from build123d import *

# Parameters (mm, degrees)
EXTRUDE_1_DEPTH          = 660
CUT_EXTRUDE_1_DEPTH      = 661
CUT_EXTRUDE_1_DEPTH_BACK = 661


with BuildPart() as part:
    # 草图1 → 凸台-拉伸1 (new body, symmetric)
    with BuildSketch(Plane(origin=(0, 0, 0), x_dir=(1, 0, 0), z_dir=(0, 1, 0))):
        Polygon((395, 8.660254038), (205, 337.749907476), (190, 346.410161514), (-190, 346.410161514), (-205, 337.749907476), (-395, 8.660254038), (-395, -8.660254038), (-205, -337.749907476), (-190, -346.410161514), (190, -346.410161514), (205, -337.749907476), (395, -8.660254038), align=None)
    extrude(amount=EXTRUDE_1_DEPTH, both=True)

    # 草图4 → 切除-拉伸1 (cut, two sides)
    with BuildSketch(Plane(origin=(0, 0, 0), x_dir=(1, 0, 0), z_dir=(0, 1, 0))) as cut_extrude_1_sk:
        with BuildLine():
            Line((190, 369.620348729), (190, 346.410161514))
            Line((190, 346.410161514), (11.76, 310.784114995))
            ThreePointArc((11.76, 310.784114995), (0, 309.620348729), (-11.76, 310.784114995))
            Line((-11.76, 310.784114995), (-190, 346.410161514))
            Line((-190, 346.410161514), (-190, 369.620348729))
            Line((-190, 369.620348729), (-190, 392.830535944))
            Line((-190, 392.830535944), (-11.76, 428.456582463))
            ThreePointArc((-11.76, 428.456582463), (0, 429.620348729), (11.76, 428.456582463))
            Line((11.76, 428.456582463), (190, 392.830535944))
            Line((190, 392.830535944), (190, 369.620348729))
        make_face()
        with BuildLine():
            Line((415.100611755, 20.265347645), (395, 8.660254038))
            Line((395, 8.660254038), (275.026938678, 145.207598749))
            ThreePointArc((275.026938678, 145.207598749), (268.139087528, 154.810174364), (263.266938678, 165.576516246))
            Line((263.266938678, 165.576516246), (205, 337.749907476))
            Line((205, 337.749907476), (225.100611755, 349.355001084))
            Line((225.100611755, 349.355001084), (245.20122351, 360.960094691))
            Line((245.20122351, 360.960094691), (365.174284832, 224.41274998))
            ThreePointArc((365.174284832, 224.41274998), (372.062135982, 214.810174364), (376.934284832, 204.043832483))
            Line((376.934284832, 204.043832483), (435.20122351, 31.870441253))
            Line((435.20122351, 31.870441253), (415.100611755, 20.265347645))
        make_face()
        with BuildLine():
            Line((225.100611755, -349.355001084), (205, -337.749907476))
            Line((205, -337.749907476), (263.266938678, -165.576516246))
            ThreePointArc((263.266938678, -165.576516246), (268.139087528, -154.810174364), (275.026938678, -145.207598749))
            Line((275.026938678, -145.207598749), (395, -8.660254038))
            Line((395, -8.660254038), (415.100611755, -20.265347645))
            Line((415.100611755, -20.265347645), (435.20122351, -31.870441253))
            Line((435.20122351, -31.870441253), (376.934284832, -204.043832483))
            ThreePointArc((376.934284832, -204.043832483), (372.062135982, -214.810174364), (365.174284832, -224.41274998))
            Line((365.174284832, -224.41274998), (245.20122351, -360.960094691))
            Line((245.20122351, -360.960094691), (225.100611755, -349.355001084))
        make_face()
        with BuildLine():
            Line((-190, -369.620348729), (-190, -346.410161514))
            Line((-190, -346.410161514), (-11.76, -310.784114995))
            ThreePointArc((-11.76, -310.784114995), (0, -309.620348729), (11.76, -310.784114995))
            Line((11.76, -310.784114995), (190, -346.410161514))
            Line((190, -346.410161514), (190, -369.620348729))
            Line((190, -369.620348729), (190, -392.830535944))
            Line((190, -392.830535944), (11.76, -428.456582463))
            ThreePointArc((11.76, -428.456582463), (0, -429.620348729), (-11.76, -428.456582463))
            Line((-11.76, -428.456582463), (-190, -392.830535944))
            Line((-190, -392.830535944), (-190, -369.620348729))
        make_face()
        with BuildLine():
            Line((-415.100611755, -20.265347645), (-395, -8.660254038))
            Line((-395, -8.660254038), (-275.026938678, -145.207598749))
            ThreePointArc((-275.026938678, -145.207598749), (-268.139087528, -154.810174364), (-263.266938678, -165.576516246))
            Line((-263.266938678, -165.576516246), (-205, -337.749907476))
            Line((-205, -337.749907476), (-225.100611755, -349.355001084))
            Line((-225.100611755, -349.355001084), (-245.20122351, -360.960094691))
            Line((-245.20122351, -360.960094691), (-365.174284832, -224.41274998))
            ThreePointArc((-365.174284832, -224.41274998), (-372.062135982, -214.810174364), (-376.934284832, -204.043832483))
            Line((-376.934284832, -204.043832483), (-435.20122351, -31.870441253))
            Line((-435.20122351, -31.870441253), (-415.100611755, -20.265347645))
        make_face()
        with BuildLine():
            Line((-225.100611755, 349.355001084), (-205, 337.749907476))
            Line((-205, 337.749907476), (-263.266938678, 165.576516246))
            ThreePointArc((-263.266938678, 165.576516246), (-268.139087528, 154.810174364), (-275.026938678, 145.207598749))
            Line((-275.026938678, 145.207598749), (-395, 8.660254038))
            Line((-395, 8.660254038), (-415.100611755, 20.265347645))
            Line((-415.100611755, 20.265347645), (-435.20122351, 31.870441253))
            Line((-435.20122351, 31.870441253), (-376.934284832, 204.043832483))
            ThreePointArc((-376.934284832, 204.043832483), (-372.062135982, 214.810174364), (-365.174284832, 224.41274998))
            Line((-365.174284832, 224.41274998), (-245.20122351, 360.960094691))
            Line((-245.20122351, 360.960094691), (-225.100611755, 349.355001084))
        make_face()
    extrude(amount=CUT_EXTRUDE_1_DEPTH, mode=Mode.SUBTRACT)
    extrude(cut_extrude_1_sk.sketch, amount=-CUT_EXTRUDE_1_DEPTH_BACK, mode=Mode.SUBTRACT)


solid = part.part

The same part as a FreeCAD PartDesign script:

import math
import FreeCAD as App
import Part
import Sketcher
from FreeCAD import Vector
Q = App.Units.Quantity

doc = App.newDocument("Part")
body = doc.addObject("PartDesign::Body", "Body")

sketch1 = body.newObject("Sketcher::SketchObject", "Sketch")
sketch1.AttachmentSupport = (doc.getObject("XZ_Plane"), [""])
sketch1.MapMode = "FlatFace"
sketch1.addGeometry(Part.LineSegment(Vector(395, -9, 0), Vector(205, -338, 0)), False)
sketch1.addGeometry(Part.LineSegment(Vector(205, -338, 0), Vector(190, -346, 0)), False)
sketch1.addGeometry(Part.LineSegment(Vector(190, -346, 0), Vector(-190, -346, 0)), False)
sketch1.addGeometry(Part.LineSegment(Vector(-190, -346, 0), Vector(-205, -338, 0)), False)
sketch1.addGeometry(Part.LineSegment(Vector(-205, -338, 0), Vector(-395, -9, 0)), False)
sketch1.addGeometry(Part.LineSegment(Vector(-395, -9, 0), Vector(-395, 9, 0)), False)
sketch1.addGeometry(Part.LineSegment(Vector(-395, 9, 0), Vector(-205, 338, 0)), False)
sketch1.addGeometry(Part.LineSegment(Vector(-205, 338, 0), Vector(-190, 346, 0)), False)
sketch1.addGeometry(Part.LineSegment(Vector(-190, 346, 0), Vector(190, 346, 0)), False)
sketch1.addGeometry(Part.LineSegment(Vector(190, 346, 0), Vector(205, 338, 0)), False)
sketch1.addGeometry(Part.LineSegment(Vector(205, 338, 0), Vector(395, 9, 0)), False)
sketch1.addGeometry(Part.LineSegment(Vector(395, 9, 0), Vector(395, -9, 0)), False)
sketch1.addConstraint(Sketcher.Constraint("Coincident", 0, 2, 1, 1))
sketch1.addConstraint(Sketcher.Constraint("Coincident", 1, 2, 2, 1))
sketch1.addConstraint(Sketcher.Constraint("Coincident", 2, 2, 3, 1))
sketch1.addConstraint(Sketcher.Constraint("Coincident", 3, 2, 4, 1))
sketch1.addConstraint(Sketcher.Constraint("Coincident", 4, 2, 5, 1))
sketch1.addConstraint(Sketcher.Constraint("Coincident", 5, 2, 6, 1))
sketch1.addConstraint(Sketcher.Constraint("Coincident", 6, 2, 7, 1))
sketch1.addConstraint(Sketcher.Constraint("Coincident", 7, 2, 8, 1))
sketch1.addConstraint(Sketcher.Constraint("Coincident", 8, 2, 9, 1))
sketch1.addConstraint(Sketcher.Constraint("Coincident", 9, 2, 10, 1))
sketch1.addConstraint(Sketcher.Constraint("Coincident", 10, 2, 11, 1))
sketch1.addConstraint(Sketcher.Constraint("Coincident", 11, 2, 0, 1))
sketch1.addConstraint(Sketcher.Constraint("Horizontal", 2))
sketch1.addConstraint(Sketcher.Constraint("Vertical", 5))
sketch1.addConstraint(Sketcher.Constraint("Horizontal", 8))
sketch1.addConstraint(Sketcher.Constraint("Vertical", 11))
sketch1.addConstraint(Sketcher.Constraint("Symmetric", 0, 2, 6, 2, -1, 1))
sketch1.addConstraint(Sketcher.Constraint("Symmetric", 1, 2, 7, 2, -1, 1))
sketch1.addConstraint(Sketcher.Constraint("Symmetric", 3, 2, 9, 2, -1, 1))
sketch1.addConstraint(Sketcher.Constraint("Symmetric", 4, 2, 10, 2, -1, 1))
sketch1.addConstraint(Sketcher.Constraint("Symmetric", 0, 2, 3, 2, -2))
sketch1.addConstraint(Sketcher.Constraint("Perpendicular", 0, 3))
sketch1.addConstraint(Sketcher.Constraint("Perpendicular", 1, 4))
sketch1.addConstraint(Sketcher.Constraint("Perpendicular", 3, 6))
sketch1.addConstraint(Sketcher.Constraint("Perpendicular", 6, 9))
sketch1.addConstraint(Sketcher.Constraint("Horizontal", 5, 2, 10, 2))
sketch1.addConstraint(Sketcher.Constraint("DistanceX", 2, 2, 2, 1, 380.0))
sketch1.addConstraint(Sketcher.Constraint("Angle", 0, Q("-120 deg")))
sketch1.addConstraint(Sketcher.Constraint("Distance", 0, 380.0))
sketch1.addConstraint(Sketcher.Constraint("DistanceX", -1, 1, 0, 2, 205.0))
sketch1.addConstraint(Sketcher.Constraint("DistanceY", 5, 1, 5, 2, 17.320508))
pad1 = body.newObject("PartDesign::Pad", "Pad")
pad1.Profile = sketch1
pad1.Length = 1320
pad1.Midplane = True

sketch2 = body.newObject("Sketcher::SketchObject", "Sketch001")
sketch2.AttachmentSupport = (doc.getObject("XZ_Plane"), [""])
sketch2.MapMode = "FlatFace"
sketch2.addGeometry(Part.LineSegment(Vector(12, -311, 0), Vector(190, -346, 0)), False)
sketch2.addGeometry(Part.LineSegment(Vector(190, -346, 0), Vector(190, -393, 0)), False)
sketch2.addGeometry(Part.LineSegment(Vector(190, -393, 0), Vector(12, -428, 0)), False)
sketch2.addGeometry(Part.ArcOfCircle(Part.Circle(Vector(0, -370, 0), Vector(0, 0, 1), 60), math.radians(-101), math.radians(-79)), False)
sketch2.addGeometry(Part.LineSegment(Vector(-12, -428, 0), Vector(-190, -393, 0)), False)
sketch2.addGeometry(Part.LineSegment(Vector(-190, -393, 0), Vector(-190, -346, 0)), False)
sketch2.addGeometry(Part.LineSegment(Vector(-190, -346, 0), Vector(-12, -311, 0)), False)
sketch2.addGeometry(Part.ArcOfCircle(Part.Circle(Vector(0, -370, 0), Vector(0, 0, 1), 60), math.radians(79), math.radians(101)), False)
sketch2.addGeometry(Part.LineSegment(Vector(395, -9, 0), Vector(415, -20, 0)), False)
sketch2.addGeometry(Part.LineSegment(Vector(415, -20, 0), Vector(435, -32, 0)), False)
sketch2.addGeometry(Part.LineSegment(Vector(435, -32, 0), Vector(377, -204, 0)), False)
sketch2.addGeometry(Part.ArcOfCircle(Part.Circle(Vector(320, -185, 0), Vector(0, 0, 1), 60), math.radians(-41), math.radians(-19)), False)
sketch2.addGeometry(Part.LineSegment(Vector(365, -224, 0), Vector(245, -361, 0)), False)
sketch2.addGeometry(Part.LineSegment(Vector(245, -361, 0), Vector(225, -349, 0)), False)
sketch2.addGeometry(Part.LineSegment(Vector(225, -349, 0), Vector(205, -338, 0)), False)
sketch2.addGeometry(Part.LineSegment(Vector(205, -338, 0), Vector(263, -166, 0)), False)
sketch2.addGeometry(Part.ArcOfCircle(Part.Circle(Vector(320, -185, 0), Vector(0, 0, 1), 60), math.radians(139), math.radians(161)), False)
sketch2.addGeometry(Part.LineSegment(Vector(275, -145, 0), Vector(395, -9, 0)), False)
sketch2.addGeometry(Part.LineSegment(Vector(205, 338, 0), Vector(225, 349, 0)), False)
sketch2.addGeometry(Part.LineSegment(Vector(225, 349, 0), Vector(245, 361, 0)), False)
sketch2.addGeometry(Part.LineSegment(Vector(245, 361, 0), Vector(365, 224, 0)), False)
sketch2.addGeometry(Part.ArcOfCircle(Part.Circle(Vector(320, 185, 0), Vector(0, 0, 1), 60), math.radians(19), math.radians(41)), False)
sketch2.addGeometry(Part.LineSegment(Vector(377, 204, 0), Vector(435, 32, 0)), False)
sketch2.addGeometry(Part.LineSegment(Vector(435, 32, 0), Vector(415, 20, 0)), False)
sketch2.addGeometry(Part.LineSegment(Vector(415, 20, 0), Vector(395, 9, 0)), False)
sketch2.addGeometry(Part.LineSegment(Vector(395, 9, 0), Vector(275, 145, 0)), False)
sketch2.addGeometry(Part.ArcOfCircle(Part.Circle(Vector(320, 185, 0), Vector(0, 0, 1), 60), math.radians(-161), math.radians(-139)), False)
sketch2.addGeometry(Part.LineSegment(Vector(263, 166, 0), Vector(205, 338, 0)), False)
sketch2.addGeometry(Part.LineSegment(Vector(-12, 311, 0), Vector(-190, 346, 0)), False)
sketch2.addGeometry(Part.LineSegment(Vector(-190, 346, 0), Vector(-190, 393, 0)), False)
sketch2.addGeometry(Part.LineSegment(Vector(-190, 393, 0), Vector(-12, 428, 0)), False)
sketch2.addGeometry(Part.ArcOfCircle(Part.Circle(Vector(0, 370, 0), Vector(0, 0, 1), 60), math.radians(79), math.radians(101)), False)
sketch2.addGeometry(Part.LineSegment(Vector(12, 428, 0), Vector(190, 393, 0)), False)
sketch2.addGeometry(Part.LineSegment(Vector(190, 393, 0), Vector(190, 346, 0)), False)
sketch2.addGeometry(Part.LineSegment(Vector(190, 346, 0), Vector(12, 311, 0)), False)
sketch2.addGeometry(Part.ArcOfCircle(Part.Circle(Vector(0, 370, 0), Vector(0, 0, 1), 60), math.radians(-101), math.radians(-79)), False)
sketch2.addGeometry(Part.LineSegment(Vector(-395, 9, 0), Vector(-415, 20, 0)), False)
sketch2.addGeometry(Part.LineSegment(Vector(-415, 20, 0), Vector(-435, 32, 0)), False)
sketch2.addGeometry(Part.LineSegment(Vector(-435, 32, 0), Vector(-377, 204, 0)), False)
sketch2.addGeometry(Part.ArcOfCircle(Part.Circle(Vector(-320, 185, 0), Vector(0, 0, 1), 60), math.radians(139), math.radians(161)), False)
sketch2.addGeometry(Part.LineSegment(Vector(-365, 224, 0), Vector(-245, 361, 0)), False)
sketch2.addGeometry(Part.LineSegment(Vector(-245, 361, 0), Vector(-225, 349, 0)), False)
sketch2.addGeometry(Part.LineSegment(Vector(-225, 349, 0), Vector(-205, 338, 0)), False)
sketch2.addGeometry(Part.LineSegment(Vector(-205, 338, 0), Vector(-263, 166, 0)), False)
sketch2.addGeometry(Part.ArcOfCircle(Part.Circle(Vector(-320, 185, 0), Vector(0, 0, 1), 60), math.radians(-41), math.radians(-19)), False)
sketch2.addGeometry(Part.LineSegment(Vector(-275, 145, 0), Vector(-395, 9, 0)), False)
sketch2.addGeometry(Part.LineSegment(Vector(-205, -338, 0), Vector(-225, -349, 0)), False)
sketch2.addGeometry(Part.LineSegment(Vector(-225, -349, 0), Vector(-245, -361, 0)), False)
sketch2.addGeometry(Part.LineSegment(Vector(-245, -361, 0), Vector(-365, -224, 0)), False)
sketch2.addGeometry(Part.ArcOfCircle(Part.Circle(Vector(-320, -185, 0), Vector(0, 0, 1), 60), math.radians(-161), math.radians(-139)), False)
sketch2.addGeometry(Part.LineSegment(Vector(-377, -204, 0), Vector(-435, -32, 0)), False)
sketch2.addGeometry(Part.LineSegment(Vector(-435, -32, 0), Vector(-415, -20, 0)), False)
sketch2.addGeometry(Part.LineSegment(Vector(-415, -20, 0), Vector(-395, -9, 0)), False)
sketch2.addGeometry(Part.LineSegment(Vector(-395, -9, 0), Vector(-275, -145, 0)), False)
sketch2.addGeometry(Part.ArcOfCircle(Part.Circle(Vector(-320, -185, 0), Vector(0, 0, 1), 60), math.radians(19), math.radians(41)), False)
sketch2.addGeometry(Part.LineSegment(Vector(-263, -166, 0), Vector(-205, -338, 0)), False)
sketch2.addConstraint(Sketcher.Constraint("Coincident", 0, 2, 1, 1))
sketch2.addConstraint(Sketcher.Constraint("Coincident", 1, 2, 2, 1))
sketch2.addConstraint(Sketcher.Constraint("Tangent", 2, 2, 3, 2))
sketch2.addConstraint(Sketcher.Constraint("Tangent", 3, 1, 4, 1))
sketch2.addConstraint(Sketcher.Constraint("Coincident", 4, 2, 5, 1))
sketch2.addConstraint(Sketcher.Constraint("Coincident", 5, 2, 6, 1))
sketch2.addConstraint(Sketcher.Constraint("Tangent", 6, 2, 7, 2))
sketch2.addConstraint(Sketcher.Constraint("Tangent", 7, 1, 0, 1))
sketch2.addConstraint(Sketcher.Constraint("Coincident", 8, 2, 9, 1))
sketch2.addConstraint(Sketcher.Constraint("Coincident", 9, 2, 10, 1))
sketch2.addConstraint(Sketcher.Constraint("Tangent", 10, 2, 11, 2))
sketch2.addConstraint(Sketcher.Constraint("Tangent", 11, 1, 12, 1))
sketch2.addConstraint(Sketcher.Constraint("Coincident", 12, 2, 13, 1))
sketch2.addConstraint(Sketcher.Constraint("Coincident", 13, 2, 14, 1))
sketch2.addConstraint(Sketcher.Constraint("Coincident", 14, 2, 15, 1))
sketch2.addConstraint(Sketcher.Constraint("Tangent", 15, 2, 16, 2))
sketch2.addConstraint(Sketcher.Constraint("Tangent", 16, 1, 17, 1))
sketch2.addConstraint(Sketcher.Constraint("Coincident", 17, 2, 8, 1))
sketch2.addConstraint(Sketcher.Constraint("Coincident", 18, 2, 19, 1))
sketch2.addConstraint(Sketcher.Constraint("Coincident", 19, 2, 20, 1))
sketch2.addConstraint(Sketcher.Constraint("Tangent", 20, 2, 21, 2))
sketch2.addConstraint(Sketcher.Constraint("Tangent", 21, 1, 22, 1))
sketch2.addConstraint(Sketcher.Constraint("Coincident", 22, 2, 23, 1))
sketch2.addConstraint(Sketcher.Constraint("Coincident", 23, 2, 24, 1))
sketch2.addConstraint(Sketcher.Constraint("Coincident", 24, 2, 25, 1))
sketch2.addConstraint(Sketcher.Constraint("Tangent", 25, 2, 26, 2))
sketch2.addConstraint(Sketcher.Constraint("Tangent", 26, 1, 27, 1))
sketch2.addConstraint(Sketcher.Constraint("Coincident", 27, 2, 18, 1))
sketch2.addConstraint(Sketcher.Constraint("Coincident", 28, 2, 29, 1))
sketch2.addConstraint(Sketcher.Constraint("Coincident", 29, 2, 30, 1))
sketch2.addConstraint(Sketcher.Constraint("Tangent", 30, 2, 31, 2))
sketch2.addConstraint(Sketcher.Constraint("Tangent", 31, 1, 32, 1))
sketch2.addConstraint(Sketcher.Constraint("Coincident", 32, 2, 33, 1))
sketch2.addConstraint(Sketcher.Constraint("Coincident", 33, 2, 34, 1))
sketch2.addConstraint(Sketcher.Constraint("Tangent", 34, 2, 35, 2))
sketch2.addConstraint(Sketcher.Constraint("Tangent", 35, 1, 28, 1))
sketch2.addConstraint(Sketcher.Constraint("Coincident", 36, 2, 37, 1))
sketch2.addConstraint(Sketcher.Constraint("Coincident", 37, 2, 38, 1))
sketch2.addConstraint(Sketcher.Constraint("Tangent", 38, 2, 39, 2))
sketch2.addConstraint(Sketcher.Constraint("Tangent", 39, 1, 40, 1))
sketch2.addConstraint(Sketcher.Constraint("Coincident", 40, 2, 41, 1))
sketch2.addConstraint(Sketcher.Constraint("Coincident", 41, 2, 42, 1))
sketch2.addConstraint(Sketcher.Constraint("Coincident", 42, 2, 43, 1))
sketch2.addConstraint(Sketcher.Constraint("Tangent", 43, 2, 44, 2))
sketch2.addConstraint(Sketcher.Constraint("Tangent", 44, 1, 45, 1))
sketch2.addConstraint(Sketcher.Constraint("Coincident", 45, 2, 36, 1))
sketch2.addConstraint(Sketcher.Constraint("Coincident", 46, 2, 47, 1))
sketch2.addConstraint(Sketcher.Constraint("Coincident", 47, 2, 48, 1))
sketch2.addConstraint(Sketcher.Constraint("Tangent", 48, 2, 49, 2))
sketch2.addConstraint(Sketcher.Constraint("Tangent", 49, 1, 50, 1))
sketch2.addConstraint(Sketcher.Constraint("Coincident", 50, 2, 51, 1))
sketch2.addConstraint(Sketcher.Constraint("Coincident", 51, 2, 52, 1))
sketch2.addConstraint(Sketcher.Constraint("Coincident", 52, 2, 53, 1))
sketch2.addConstraint(Sketcher.Constraint("Tangent", 53, 2, 54, 2))
sketch2.addConstraint(Sketcher.Constraint("Tangent", 54, 1, 55, 1))
sketch2.addConstraint(Sketcher.Constraint("Coincident", 55, 2, 46, 1))
sketch2.addConstraint(Sketcher.Constraint("Vertical", 1))
sketch2.addConstraint(Sketcher.Constraint("Vertical", 5))
sketch2.addConstraint(Sketcher.Constraint("Vertical", 29))
sketch2.addConstraint(Sketcher.Constraint("Vertical", 33))
sketch2.addConstraint(Sketcher.Constraint("Coincident", 7, 3, 3, 3))
sketch2.addConstraint(Sketcher.Constraint("Coincident", 16, 3, 11, 3))
sketch2.addConstraint(Sketcher.Constraint("Coincident", 26, 3, 21, 3))
sketch2.addConstraint(Sketcher.Constraint("Coincident", 35, 3, 31, 3))
sketch2.addConstraint(Sketcher.Constraint("Coincident", 44, 3, 39, 3))
sketch2.addConstraint(Sketcher.Constraint("Coincident", 54, 3, 49, 3))
sketch2.addConstraint(Sketcher.Constraint("Equal", 3, 7))
sketch2.addConstraint(Sketcher.Constraint("Equal", 7, 11))
sketch2.addConstraint(Sketcher.Constraint("Equal", 11, 16))
sketch2.addConstraint(Sketcher.Constraint("Equal", 16, 21))
sketch2.addConstraint(Sketcher.Constraint("Equal", 21, 26))
sketch2.addConstraint(Sketcher.Constraint("Equal", 26, 31))
sketch2.addConstraint(Sketcher.Constraint("Equal", 31, 35))
sketch2.addConstraint(Sketcher.Constraint("Equal", 35, 39))
sketch2.addConstraint(Sketcher.Constraint("Equal", 39, 44))
sketch2.addConstraint(Sketcher.Constraint("Equal", 44, 49))
sketch2.addConstraint(Sketcher.Constraint("Equal", 49, 54))
sketch2.addConstraint(Sketcher.Constraint("Symmetric", 3, 3, 31, 3, -1, 1))
sketch2.addConstraint(Sketcher.Constraint("Symmetric", 11, 3, 39, 3, -1, 1))
sketch2.addConstraint(Sketcher.Constraint("Symmetric", 21, 3, 49, 3, -1, 1))
sketch2.addConstraint(Sketcher.Constraint("Symmetric", 0, 2, 28, 2, -1, 1))
sketch2.addConstraint(Sketcher.Constraint("Symmetric", 4, 2, 32, 2, -1, 1))
sketch2.addConstraint(Sketcher.Constraint("Symmetric", 8, 2, 36, 2, -1, 1))
sketch2.addConstraint(Sketcher.Constraint("Symmetric", 9, 2, 37, 2, -1, 1))
sketch2.addConstraint(Sketcher.Constraint("Symmetric", 12, 2, 40, 2, -1, 1))
sketch2.addConstraint(Sketcher.Constraint("Symmetric", 13, 2, 41, 2, -1, 1))
sketch2.addConstraint(Sketcher.Constraint("Symmetric", 14, 2, 42, 2, -1, 1))
sketch2.addConstraint(Sketcher.Constraint("Symmetric", 17, 2, 45, 2, -1, 1))
sketch2.addConstraint(Sketcher.Constraint("Symmetric", 18, 2, 46, 2, -1, 1))
sketch2.addConstraint(Sketcher.Constraint("Symmetric", 19, 2, 47, 2, -1, 1))
sketch2.addConstraint(Sketcher.Constraint("Symmetric", 22, 2, 50, 2, -1, 1))
sketch2.addConstraint(Sketcher.Constraint("Symmetric", 23, 2, 51, 2, -1, 1))
sketch2.addConstraint(Sketcher.Constraint("Symmetric", 24, 2, 52, 2, -1, 1))
sketch2.addConstraint(Sketcher.Constraint("Symmetric", 27, 2, 55, 2, -1, 1))
sketch2.addConstraint(Sketcher.Constraint("Symmetric", 21, 3, 39, 3, -2))
sketch2.addConstraint(Sketcher.Constraint("Symmetric", 2, 2, 3, 1, -2))
sketch2.addConstraint(Sketcher.Constraint("Symmetric", 0, 2, 5, 2, -2))
sketch2.addConstraint(Sketcher.Constraint("Symmetric", 23, 2, 36, 2, -2))
sketch2.addConstraint(Sketcher.Constraint("Symmetric", 22, 2, 37, 2, -2))
sketch2.addConstraint(Sketcher.Constraint("Symmetric", 19, 2, 40, 2, -2))
sketch2.addConstraint(Sketcher.Constraint("Symmetric", 18, 2, 41, 2, -2))
sketch2.addConstraint(Sketcher.Constraint("Symmetric", 27, 2, 42, 2, -2))
sketch2.addConstraint(Sketcher.Constraint("Symmetric", 24, 2, 45, 2, -2))
sketch2.addConstraint(Sketcher.Constraint("Parallel", 0, 4))
sketch2.addConstraint(Sketcher.Constraint("Parallel", 8, 9))
sketch2.addConstraint(Sketcher.Constraint("Parallel", 9, 13))
sketch2.addConstraint(Sketcher.Constraint("Parallel", 13, 14))
sketch2.addConstraint(Sketcher.Constraint("Parallel", 10, 15))
sketch2.addConstraint(Sketcher.Constraint("Parallel", 12, 17))
sketch2.addConstraint(Sketcher.Constraint("Parallel", 6, 30))
sketch2.addConstraint(Sketcher.Constraint("Parallel", 30, 34))
sketch2.addConstraint(Sketcher.Constraint("Equal", 8, 9))
sketch2.addConstraint(Sketcher.Constraint("Equal", 6, 10))
sketch2.addConstraint(Sketcher.Constraint("Equal", 10, 12))
sketch2.addConstraint(Sketcher.Constraint("Equal", 9, 13))
sketch2.addConstraint(Sketcher.Constraint("Equal", 13, 14))
sketch2.addConstraint(Sketcher.Constraint("Radius", 3, 60.0))
sketch2.addConstraint(Sketcher.Constraint("Angle", 8, Q("-30 deg")))
sketch2.addConstraint(Sketcher.Constraint("DistanceX", -1, 1, 0, 2, 190.0))
sketch2.addConstraint(Sketcher.Constraint("DistanceX", -1, 1, 14, 2, 205.0))
sketch2.addConstraint(Sketcher.Constraint("DistanceX", -1, 1, 17, 2, 395.0))
sketch2.addConstraint(Sketcher.Constraint("DistanceX", -1, 1, 2, 2, 11.76))
sketch2.addConstraint(Sketcher.Constraint("DistanceY", 13, 2, -1, 1, 349.355001))
sketch2.addConstraint(Sketcher.Constraint("DistanceY", 3, 3, -1, 1, 369.620349))
pocket1 = body.newObject("PartDesign::Pocket", "Pocket")
pocket1.Profile = sketch2
pocket1.Type = "ThroughAll"
pocket1.Midplane = True

doc.recompute()
